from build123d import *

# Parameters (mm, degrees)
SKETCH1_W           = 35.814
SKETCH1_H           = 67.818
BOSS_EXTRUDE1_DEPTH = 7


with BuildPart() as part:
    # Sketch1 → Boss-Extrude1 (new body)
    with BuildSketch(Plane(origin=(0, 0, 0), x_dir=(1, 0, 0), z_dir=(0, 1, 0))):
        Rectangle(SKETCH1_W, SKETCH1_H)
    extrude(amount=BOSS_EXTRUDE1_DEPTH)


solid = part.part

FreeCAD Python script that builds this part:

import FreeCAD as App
import Part
import Sketcher

V = App.Vector
Q = App.Units.Quantity

doc = App.newDocument("Part")
params = doc.addObject("Spreadsheet::Sheet", "Params")
for row, (alias, value) in enumerate([
    ("sketch1_width", "1.41 in"),
    ("sketch1_height", "2.67 in"),
    ("pad1_length", "7 mm"),
], start=1):
    params.set(f"A{row}", alias)
    params.set(f"B{row}", "=" + value)
    params.setAlias(f"B{row}", alias)

body = doc.addObject("PartDesign::Body", "Body")

# Sketch on XZ plane
sketch1 = doc.addObject("Sketcher::SketchObject", "Sketch")
body.addObject(sketch1)
sketch1.AttachmentSupport = (doc.XZ_Plane, [""])
sketch1.MapMode = "FlatFace"
sketch1.addGeometry([
    Part.LineSegment(V(-18, -34, 0), V(-18, 34, 0)),
    Part.LineSegment(V(-18, 34, 0), V(18, 34, 0)),
    Part.LineSegment(V(18, 34, 0), V(18, -34, 0)),
    Part.LineSegment(V(18, -34, 0), V(-18, -34, 0)),
], False)
sketch1.addConstraint([
    Sketcher.Constraint("Coincident", 0, 2, 1, 1),
    Sketcher.Constraint("Coincident", 1, 2, 2, 1),
    Sketcher.Constraint("Coincident", 2, 2, 3, 1),
    Sketcher.Constraint("Coincident", 3, 2, 0, 1),
    Sketcher.Constraint("Vertical", 0),
    Sketcher.Constraint("Horizontal", 1),
    Sketcher.Constraint("Vertical", 2),
    Sketcher.Constraint("Horizontal", 3),
    Sketcher.Constraint("Symmetric", 0, 2, 2, 2, -1, 1),
    Sketcher.Constraint("DistanceX", 1, 1, 1, 2, Q("1.41 in")),
    Sketcher.Constraint("DistanceY", 0, 1, 0, 2, Q("2.67 in")),
])
sketch1.setExpression("Constraints[9]", "Params.sketch1_width")
sketch1.setExpression("Constraints[10]", "Params.sketch1_height")
pad1 = doc.addObject("PartDesign::Pad", "Pad")
body.addObject(pad1)
pad1.Profile = sketch1
pad1.setExpression("Length", "Params.pad1_length")
pad1.Reversed = True

doc.recompute()
